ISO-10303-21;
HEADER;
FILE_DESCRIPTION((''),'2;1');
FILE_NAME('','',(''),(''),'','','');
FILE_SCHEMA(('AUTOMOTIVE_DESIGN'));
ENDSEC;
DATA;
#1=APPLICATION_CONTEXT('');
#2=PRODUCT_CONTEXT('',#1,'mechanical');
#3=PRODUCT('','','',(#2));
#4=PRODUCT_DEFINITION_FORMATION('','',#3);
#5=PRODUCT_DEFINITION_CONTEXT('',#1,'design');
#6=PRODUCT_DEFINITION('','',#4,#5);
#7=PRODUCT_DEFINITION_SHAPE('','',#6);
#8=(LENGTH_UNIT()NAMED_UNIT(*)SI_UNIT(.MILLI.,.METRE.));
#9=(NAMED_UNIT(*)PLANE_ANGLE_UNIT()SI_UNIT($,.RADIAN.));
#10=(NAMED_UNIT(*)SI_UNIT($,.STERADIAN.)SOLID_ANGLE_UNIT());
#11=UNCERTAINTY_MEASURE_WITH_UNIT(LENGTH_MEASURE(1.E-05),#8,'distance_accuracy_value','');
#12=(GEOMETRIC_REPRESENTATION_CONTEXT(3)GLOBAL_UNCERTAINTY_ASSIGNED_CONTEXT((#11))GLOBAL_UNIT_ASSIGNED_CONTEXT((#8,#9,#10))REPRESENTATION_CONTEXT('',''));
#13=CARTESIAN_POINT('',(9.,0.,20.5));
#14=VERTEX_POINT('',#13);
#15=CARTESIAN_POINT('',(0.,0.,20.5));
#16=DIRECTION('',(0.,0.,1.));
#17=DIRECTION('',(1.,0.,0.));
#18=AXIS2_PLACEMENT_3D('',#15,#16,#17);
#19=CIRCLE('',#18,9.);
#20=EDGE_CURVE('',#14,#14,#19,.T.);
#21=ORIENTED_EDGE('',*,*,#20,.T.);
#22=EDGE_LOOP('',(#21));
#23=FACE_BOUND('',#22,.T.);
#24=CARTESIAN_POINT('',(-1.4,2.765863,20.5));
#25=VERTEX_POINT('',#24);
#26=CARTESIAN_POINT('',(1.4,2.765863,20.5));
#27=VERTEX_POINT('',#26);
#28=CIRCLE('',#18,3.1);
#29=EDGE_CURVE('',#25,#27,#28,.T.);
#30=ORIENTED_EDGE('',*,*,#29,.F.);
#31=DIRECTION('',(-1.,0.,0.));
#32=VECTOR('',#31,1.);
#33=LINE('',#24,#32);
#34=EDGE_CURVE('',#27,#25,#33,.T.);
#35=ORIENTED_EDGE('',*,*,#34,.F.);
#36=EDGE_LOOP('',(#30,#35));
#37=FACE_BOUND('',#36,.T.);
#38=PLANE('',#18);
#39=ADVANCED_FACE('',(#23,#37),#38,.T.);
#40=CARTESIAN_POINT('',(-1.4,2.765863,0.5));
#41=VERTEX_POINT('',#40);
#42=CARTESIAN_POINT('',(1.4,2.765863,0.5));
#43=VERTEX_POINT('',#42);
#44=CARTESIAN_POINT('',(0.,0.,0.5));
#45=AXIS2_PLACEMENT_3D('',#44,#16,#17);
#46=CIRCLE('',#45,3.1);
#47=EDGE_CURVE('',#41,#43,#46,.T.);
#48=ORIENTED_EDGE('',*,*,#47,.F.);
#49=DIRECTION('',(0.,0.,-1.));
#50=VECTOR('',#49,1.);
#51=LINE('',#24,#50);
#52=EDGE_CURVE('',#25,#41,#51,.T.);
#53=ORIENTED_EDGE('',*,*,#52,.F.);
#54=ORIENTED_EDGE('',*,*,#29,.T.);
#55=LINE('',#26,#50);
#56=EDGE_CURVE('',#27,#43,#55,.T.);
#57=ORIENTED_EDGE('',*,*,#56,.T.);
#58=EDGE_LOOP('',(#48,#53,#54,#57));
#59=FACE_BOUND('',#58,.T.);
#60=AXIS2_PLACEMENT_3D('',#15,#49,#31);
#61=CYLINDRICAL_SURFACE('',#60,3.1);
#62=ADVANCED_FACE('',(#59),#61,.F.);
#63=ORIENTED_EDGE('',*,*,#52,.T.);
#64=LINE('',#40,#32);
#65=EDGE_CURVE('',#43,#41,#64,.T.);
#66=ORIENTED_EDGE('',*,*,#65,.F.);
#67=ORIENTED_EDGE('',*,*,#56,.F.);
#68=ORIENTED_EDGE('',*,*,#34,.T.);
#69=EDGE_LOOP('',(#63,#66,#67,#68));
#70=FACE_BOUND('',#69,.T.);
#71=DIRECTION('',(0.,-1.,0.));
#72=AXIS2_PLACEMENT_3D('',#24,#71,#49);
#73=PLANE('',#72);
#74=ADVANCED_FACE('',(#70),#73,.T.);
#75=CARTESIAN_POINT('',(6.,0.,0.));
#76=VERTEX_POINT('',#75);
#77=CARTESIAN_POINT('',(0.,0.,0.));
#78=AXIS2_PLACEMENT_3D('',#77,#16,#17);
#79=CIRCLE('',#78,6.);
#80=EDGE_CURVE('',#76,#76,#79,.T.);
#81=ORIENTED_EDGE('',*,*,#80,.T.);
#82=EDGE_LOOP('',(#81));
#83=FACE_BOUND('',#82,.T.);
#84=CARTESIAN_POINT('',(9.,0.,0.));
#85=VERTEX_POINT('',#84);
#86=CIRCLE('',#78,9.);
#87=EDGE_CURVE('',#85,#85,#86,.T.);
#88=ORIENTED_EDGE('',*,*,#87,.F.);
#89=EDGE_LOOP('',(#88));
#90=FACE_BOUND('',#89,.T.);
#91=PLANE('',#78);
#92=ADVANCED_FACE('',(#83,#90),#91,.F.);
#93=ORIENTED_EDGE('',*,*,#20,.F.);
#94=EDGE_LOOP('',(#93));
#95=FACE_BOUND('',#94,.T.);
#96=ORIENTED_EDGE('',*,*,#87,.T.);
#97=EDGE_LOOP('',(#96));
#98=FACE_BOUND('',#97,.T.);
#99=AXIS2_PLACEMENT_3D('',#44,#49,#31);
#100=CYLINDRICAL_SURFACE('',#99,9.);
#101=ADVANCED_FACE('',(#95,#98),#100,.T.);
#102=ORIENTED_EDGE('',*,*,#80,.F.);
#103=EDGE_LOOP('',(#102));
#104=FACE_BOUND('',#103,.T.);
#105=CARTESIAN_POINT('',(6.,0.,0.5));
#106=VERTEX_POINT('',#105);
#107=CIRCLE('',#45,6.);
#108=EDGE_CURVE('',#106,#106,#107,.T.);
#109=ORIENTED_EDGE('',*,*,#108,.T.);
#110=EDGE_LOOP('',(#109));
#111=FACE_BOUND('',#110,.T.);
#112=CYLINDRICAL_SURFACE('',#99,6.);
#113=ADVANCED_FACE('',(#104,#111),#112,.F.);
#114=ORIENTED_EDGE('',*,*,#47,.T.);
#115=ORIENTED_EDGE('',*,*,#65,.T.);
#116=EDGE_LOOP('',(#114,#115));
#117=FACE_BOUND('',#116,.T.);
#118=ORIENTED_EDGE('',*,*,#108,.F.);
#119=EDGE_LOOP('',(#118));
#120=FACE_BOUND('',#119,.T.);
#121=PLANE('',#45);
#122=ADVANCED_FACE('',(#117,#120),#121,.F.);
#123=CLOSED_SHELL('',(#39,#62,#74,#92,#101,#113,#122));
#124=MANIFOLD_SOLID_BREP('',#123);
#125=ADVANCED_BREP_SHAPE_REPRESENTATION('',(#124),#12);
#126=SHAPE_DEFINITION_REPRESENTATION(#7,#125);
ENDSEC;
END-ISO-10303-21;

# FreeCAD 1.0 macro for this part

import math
import FreeCAD as App
import Part
import Sketcher

V = App.Vector
Q = App.Units.Quantity

doc = App.newDocument("Part")
body = doc.addObject("PartDesign::Body", "Body")

# Sketch on XY plane
sketch1 = body.newObject("Sketcher::SketchObject", "Sketch")
sketch1.AttachmentSupport = (doc.getObject("XY_Plane"), [""])
sketch1.MapMode = "FlatFace"
sketch1.addGeometry(Part.Circle(V(0, 0, 0), V(0, 0, 1), 9), False)
sketch1.addGeometry(Part.Circle(V(0, 0, 0), V(0, 0, 1), 6), False)
sketch1.addConstraint(Sketcher.Constraint("Coincident", 0, 3, -1, 1))
sketch1.addConstraint(Sketcher.Constraint("Coincident", 1, 3, -1, 1))
sketch1.addConstraint(Sketcher.Constraint("Diameter", 0, Q("18 mm")))
sketch1.addConstraint(Sketcher.Constraint("Diameter", 1, Q("12 mm")))
pad1 = body.newObject("PartDesign::Pad", "Pad")
pad1.Profile = sketch1
pad1.Length = 0.5

# Sketch on XY plane
sketch2 = body.newObject("Sketcher::SketchObject", "Sketch001")
sketch2.AttachmentSupport = (doc.getObject("XY_Plane"), [""])
sketch2.MapMode = "FlatFace"
sketch2.AttachmentOffset = App.Placement(V(0, 0, 0.5), App.Rotation())
sketch2.addGeometry(Part.Circle(V(0, 0, 0), V(0, 0, 1), 9), False)
sketch2.addGeometry(Part.ArcOfCircle(Part.Circle(V(0, 0, 0), V(0, 0, 1), 3.1), math.radians(117), math.radians(423)), False)
sketch2.addGeometry(Part.LineSegment(V(-1.4, 2.8, 0), V(1.4, 2.8, 0)), False)
sketch2.addConstraint(Sketcher.Constraint("Coincident", 1, 1, 2, 1))
sketch2.addConstraint(Sketcher.Constraint("Coincident", 2, 2, 1, 2))
sketch2.addConstraint(Sketcher.Constraint("Horizontal", 2))
sketch2.addConstraint(Sketcher.Constraint("Coincident", 0, 3, -1, 1))
sketch2.addConstraint(Sketcher.Constraint("Coincident", 1, 3, -1, 1))
sketch2.addConstraint(Sketcher.Constraint("Diameter", 0, Q("18 mm")))
sketch2.addConstraint(Sketcher.Constraint("Radius", 1, Q("3.1 mm")))
sketch2.addConstraint(Sketcher.Constraint("DistanceX", 2, 1, 2, 2, Q("2.8 mm")))
pad2 = body.newObject("PartDesign::Pad", "Pad001")
pad2.Profile = sketch2
pad2.Length = 20

doc.recompute()
